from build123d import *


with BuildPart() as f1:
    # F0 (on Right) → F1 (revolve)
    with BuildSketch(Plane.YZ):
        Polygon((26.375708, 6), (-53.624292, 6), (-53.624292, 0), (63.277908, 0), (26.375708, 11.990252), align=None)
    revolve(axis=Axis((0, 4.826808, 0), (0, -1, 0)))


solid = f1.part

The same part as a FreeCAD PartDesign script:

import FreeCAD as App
import Part
import Sketcher

V = App.Vector
Q = App.Units.Quantity

doc = App.newDocument("Part")
body = doc.addObject("PartDesign::Body", "Body")

sketch1 = body.newObject("Sketcher::SketchObject", "Sketch")
sketch1.AttachmentSupport = (doc.getObject("YZ_Plane"), [""])
sketch1.MapMode = "FlatFace"
sketch1.addGeometry([
    Part.LineSegment(V(26, 6, 0), V(-54, 6, 0)),
    Part.LineSegment(V(-54, 6, 0), V(-54, 0, 0)),
    Part.LineSegment(V(-54, 0, 0), V(63, 0, 0)),
    Part.LineSegment(V(63, 0, 0), V(26, 12, 0)),
    Part.LineSegment(V(26, 12, 0), V(26, 6, 0)),
], False)
sketch1.addConstraint([
    Sketcher.Constraint("Coincident", 0, 2, 1, 1),
    Sketcher.Constraint("Coincident", 1, 2, 2, 1),
    Sketcher.Constraint("Coincident", 2, 2, 3, 1),
    Sketcher.Constraint("Coincident", 3, 2, 4, 1),
    Sketcher.Constraint("Coincident", 4, 2, 0, 1),
    Sketcher.Constraint("Horizontal", 0),
    Sketcher.Constraint("Vertical", 1),
    Sketcher.Constraint("Horizontal", 2),
    Sketcher.Constraint("Vertical", 4),
    Sketcher.Constraint("PointOnObject", 1, 2, -1),
    Sketcher.Constraint("DistanceX", 0, 2, 0, 1, 80.0),
    Sketcher.Constraint("DistanceY", 1, 2, 1, 1, 6.0),
    Sketcher.Constraint("Angle", 3, Q("161.999999 deg")),
    Sketcher.Constraint("DistanceX", 2, 1, 2, 2, 116.9022),
    Sketcher.Constraint("DistanceX", 0, 2, -1, 1, 53.624292),
])
revolution = body.newObject("PartDesign::Revolution", "Revolution")
revolution.Profile = sketch1
revolution.ReferenceAxis = (sketch1, ["H_Axis"])
revolution.Angle = 360

doc.recompute()
